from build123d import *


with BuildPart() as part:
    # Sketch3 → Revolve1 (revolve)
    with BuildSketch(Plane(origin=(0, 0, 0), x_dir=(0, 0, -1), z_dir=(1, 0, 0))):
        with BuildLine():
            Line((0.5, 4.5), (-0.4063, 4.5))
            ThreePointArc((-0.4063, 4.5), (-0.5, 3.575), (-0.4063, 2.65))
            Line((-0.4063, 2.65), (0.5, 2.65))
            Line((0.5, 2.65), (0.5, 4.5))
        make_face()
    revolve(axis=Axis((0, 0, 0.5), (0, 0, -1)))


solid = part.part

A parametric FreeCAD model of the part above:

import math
import FreeCAD as App
import Part
import Sketcher

V = App.Vector
Q = App.Units.Quantity

doc = App.newDocument("Part")
body = doc.addObject("PartDesign::Body", "Body")

# Sketch on YZ plane
sketch1 = body.newObject("Sketcher::SketchObject", "Sketch")
sketch1.AttachmentSupport = (doc.getObject("YZ_Plane"), [""])
sketch1.MapMode = "FlatFace"
sketch1.addGeometry([
    Part.LineSegment(V(4.5, -0.5, 0), V(4.5, 0.4, 0)),
    Part.ArcOfCircle(Part.Circle(V(3.6, -4.1, 0), V(0, 0, 1), 4.6), math.radians(78), math.radians(102)),
    Part.LineSegment(V(2.6, 0.4, 0), V(2.6, -0.5, 0)),
    Part.LineSegment(V(2.6, -0.5, 0), V(4.5, -0.5, 0)),
], False)
sketch1.addConstraint([
    Sketcher.Constraint("Coincident", 0, 2, 1, 1),
    Sketcher.Constraint("Coincident", 1, 2, 2, 1),
    Sketcher.Constraint("Coincident", 2, 2, 3, 1),
    Sketcher.Constraint("Coincident", 3, 2, 0, 1),
    Sketcher.Constraint("Vertical", 0),
    Sketcher.Constraint("Vertical", 2),
    Sketcher.Constraint("Horizontal", 3),
    Sketcher.Constraint("Horizontal", 0, 2, 1, 2),
    Sketcher.Constraint("DistanceX", 3, 1, 3, 2, Q("1.85 mm")),
    Sketcher.Constraint("DistanceX", -1, 1, 0, 2, Q("4.5 mm")),
    Sketcher.Constraint("DistanceY", 2, 2, -1, 1, Q("0.5 mm")),
    Sketcher.Constraint("Radius", 1, Q("4.612618 mm")),
    Sketcher.Constraint("DistanceY", 0, 1, 0, 2, Q("0.9063 mm")),
])
revolution = body.newObject("PartDesign::Revolution", "Revolution")
revolution.Profile = sketch1
revolution.ReferenceAxis = (sketch1, ["V_Axis"])
revolution.Angle = 360

doc.recompute()
